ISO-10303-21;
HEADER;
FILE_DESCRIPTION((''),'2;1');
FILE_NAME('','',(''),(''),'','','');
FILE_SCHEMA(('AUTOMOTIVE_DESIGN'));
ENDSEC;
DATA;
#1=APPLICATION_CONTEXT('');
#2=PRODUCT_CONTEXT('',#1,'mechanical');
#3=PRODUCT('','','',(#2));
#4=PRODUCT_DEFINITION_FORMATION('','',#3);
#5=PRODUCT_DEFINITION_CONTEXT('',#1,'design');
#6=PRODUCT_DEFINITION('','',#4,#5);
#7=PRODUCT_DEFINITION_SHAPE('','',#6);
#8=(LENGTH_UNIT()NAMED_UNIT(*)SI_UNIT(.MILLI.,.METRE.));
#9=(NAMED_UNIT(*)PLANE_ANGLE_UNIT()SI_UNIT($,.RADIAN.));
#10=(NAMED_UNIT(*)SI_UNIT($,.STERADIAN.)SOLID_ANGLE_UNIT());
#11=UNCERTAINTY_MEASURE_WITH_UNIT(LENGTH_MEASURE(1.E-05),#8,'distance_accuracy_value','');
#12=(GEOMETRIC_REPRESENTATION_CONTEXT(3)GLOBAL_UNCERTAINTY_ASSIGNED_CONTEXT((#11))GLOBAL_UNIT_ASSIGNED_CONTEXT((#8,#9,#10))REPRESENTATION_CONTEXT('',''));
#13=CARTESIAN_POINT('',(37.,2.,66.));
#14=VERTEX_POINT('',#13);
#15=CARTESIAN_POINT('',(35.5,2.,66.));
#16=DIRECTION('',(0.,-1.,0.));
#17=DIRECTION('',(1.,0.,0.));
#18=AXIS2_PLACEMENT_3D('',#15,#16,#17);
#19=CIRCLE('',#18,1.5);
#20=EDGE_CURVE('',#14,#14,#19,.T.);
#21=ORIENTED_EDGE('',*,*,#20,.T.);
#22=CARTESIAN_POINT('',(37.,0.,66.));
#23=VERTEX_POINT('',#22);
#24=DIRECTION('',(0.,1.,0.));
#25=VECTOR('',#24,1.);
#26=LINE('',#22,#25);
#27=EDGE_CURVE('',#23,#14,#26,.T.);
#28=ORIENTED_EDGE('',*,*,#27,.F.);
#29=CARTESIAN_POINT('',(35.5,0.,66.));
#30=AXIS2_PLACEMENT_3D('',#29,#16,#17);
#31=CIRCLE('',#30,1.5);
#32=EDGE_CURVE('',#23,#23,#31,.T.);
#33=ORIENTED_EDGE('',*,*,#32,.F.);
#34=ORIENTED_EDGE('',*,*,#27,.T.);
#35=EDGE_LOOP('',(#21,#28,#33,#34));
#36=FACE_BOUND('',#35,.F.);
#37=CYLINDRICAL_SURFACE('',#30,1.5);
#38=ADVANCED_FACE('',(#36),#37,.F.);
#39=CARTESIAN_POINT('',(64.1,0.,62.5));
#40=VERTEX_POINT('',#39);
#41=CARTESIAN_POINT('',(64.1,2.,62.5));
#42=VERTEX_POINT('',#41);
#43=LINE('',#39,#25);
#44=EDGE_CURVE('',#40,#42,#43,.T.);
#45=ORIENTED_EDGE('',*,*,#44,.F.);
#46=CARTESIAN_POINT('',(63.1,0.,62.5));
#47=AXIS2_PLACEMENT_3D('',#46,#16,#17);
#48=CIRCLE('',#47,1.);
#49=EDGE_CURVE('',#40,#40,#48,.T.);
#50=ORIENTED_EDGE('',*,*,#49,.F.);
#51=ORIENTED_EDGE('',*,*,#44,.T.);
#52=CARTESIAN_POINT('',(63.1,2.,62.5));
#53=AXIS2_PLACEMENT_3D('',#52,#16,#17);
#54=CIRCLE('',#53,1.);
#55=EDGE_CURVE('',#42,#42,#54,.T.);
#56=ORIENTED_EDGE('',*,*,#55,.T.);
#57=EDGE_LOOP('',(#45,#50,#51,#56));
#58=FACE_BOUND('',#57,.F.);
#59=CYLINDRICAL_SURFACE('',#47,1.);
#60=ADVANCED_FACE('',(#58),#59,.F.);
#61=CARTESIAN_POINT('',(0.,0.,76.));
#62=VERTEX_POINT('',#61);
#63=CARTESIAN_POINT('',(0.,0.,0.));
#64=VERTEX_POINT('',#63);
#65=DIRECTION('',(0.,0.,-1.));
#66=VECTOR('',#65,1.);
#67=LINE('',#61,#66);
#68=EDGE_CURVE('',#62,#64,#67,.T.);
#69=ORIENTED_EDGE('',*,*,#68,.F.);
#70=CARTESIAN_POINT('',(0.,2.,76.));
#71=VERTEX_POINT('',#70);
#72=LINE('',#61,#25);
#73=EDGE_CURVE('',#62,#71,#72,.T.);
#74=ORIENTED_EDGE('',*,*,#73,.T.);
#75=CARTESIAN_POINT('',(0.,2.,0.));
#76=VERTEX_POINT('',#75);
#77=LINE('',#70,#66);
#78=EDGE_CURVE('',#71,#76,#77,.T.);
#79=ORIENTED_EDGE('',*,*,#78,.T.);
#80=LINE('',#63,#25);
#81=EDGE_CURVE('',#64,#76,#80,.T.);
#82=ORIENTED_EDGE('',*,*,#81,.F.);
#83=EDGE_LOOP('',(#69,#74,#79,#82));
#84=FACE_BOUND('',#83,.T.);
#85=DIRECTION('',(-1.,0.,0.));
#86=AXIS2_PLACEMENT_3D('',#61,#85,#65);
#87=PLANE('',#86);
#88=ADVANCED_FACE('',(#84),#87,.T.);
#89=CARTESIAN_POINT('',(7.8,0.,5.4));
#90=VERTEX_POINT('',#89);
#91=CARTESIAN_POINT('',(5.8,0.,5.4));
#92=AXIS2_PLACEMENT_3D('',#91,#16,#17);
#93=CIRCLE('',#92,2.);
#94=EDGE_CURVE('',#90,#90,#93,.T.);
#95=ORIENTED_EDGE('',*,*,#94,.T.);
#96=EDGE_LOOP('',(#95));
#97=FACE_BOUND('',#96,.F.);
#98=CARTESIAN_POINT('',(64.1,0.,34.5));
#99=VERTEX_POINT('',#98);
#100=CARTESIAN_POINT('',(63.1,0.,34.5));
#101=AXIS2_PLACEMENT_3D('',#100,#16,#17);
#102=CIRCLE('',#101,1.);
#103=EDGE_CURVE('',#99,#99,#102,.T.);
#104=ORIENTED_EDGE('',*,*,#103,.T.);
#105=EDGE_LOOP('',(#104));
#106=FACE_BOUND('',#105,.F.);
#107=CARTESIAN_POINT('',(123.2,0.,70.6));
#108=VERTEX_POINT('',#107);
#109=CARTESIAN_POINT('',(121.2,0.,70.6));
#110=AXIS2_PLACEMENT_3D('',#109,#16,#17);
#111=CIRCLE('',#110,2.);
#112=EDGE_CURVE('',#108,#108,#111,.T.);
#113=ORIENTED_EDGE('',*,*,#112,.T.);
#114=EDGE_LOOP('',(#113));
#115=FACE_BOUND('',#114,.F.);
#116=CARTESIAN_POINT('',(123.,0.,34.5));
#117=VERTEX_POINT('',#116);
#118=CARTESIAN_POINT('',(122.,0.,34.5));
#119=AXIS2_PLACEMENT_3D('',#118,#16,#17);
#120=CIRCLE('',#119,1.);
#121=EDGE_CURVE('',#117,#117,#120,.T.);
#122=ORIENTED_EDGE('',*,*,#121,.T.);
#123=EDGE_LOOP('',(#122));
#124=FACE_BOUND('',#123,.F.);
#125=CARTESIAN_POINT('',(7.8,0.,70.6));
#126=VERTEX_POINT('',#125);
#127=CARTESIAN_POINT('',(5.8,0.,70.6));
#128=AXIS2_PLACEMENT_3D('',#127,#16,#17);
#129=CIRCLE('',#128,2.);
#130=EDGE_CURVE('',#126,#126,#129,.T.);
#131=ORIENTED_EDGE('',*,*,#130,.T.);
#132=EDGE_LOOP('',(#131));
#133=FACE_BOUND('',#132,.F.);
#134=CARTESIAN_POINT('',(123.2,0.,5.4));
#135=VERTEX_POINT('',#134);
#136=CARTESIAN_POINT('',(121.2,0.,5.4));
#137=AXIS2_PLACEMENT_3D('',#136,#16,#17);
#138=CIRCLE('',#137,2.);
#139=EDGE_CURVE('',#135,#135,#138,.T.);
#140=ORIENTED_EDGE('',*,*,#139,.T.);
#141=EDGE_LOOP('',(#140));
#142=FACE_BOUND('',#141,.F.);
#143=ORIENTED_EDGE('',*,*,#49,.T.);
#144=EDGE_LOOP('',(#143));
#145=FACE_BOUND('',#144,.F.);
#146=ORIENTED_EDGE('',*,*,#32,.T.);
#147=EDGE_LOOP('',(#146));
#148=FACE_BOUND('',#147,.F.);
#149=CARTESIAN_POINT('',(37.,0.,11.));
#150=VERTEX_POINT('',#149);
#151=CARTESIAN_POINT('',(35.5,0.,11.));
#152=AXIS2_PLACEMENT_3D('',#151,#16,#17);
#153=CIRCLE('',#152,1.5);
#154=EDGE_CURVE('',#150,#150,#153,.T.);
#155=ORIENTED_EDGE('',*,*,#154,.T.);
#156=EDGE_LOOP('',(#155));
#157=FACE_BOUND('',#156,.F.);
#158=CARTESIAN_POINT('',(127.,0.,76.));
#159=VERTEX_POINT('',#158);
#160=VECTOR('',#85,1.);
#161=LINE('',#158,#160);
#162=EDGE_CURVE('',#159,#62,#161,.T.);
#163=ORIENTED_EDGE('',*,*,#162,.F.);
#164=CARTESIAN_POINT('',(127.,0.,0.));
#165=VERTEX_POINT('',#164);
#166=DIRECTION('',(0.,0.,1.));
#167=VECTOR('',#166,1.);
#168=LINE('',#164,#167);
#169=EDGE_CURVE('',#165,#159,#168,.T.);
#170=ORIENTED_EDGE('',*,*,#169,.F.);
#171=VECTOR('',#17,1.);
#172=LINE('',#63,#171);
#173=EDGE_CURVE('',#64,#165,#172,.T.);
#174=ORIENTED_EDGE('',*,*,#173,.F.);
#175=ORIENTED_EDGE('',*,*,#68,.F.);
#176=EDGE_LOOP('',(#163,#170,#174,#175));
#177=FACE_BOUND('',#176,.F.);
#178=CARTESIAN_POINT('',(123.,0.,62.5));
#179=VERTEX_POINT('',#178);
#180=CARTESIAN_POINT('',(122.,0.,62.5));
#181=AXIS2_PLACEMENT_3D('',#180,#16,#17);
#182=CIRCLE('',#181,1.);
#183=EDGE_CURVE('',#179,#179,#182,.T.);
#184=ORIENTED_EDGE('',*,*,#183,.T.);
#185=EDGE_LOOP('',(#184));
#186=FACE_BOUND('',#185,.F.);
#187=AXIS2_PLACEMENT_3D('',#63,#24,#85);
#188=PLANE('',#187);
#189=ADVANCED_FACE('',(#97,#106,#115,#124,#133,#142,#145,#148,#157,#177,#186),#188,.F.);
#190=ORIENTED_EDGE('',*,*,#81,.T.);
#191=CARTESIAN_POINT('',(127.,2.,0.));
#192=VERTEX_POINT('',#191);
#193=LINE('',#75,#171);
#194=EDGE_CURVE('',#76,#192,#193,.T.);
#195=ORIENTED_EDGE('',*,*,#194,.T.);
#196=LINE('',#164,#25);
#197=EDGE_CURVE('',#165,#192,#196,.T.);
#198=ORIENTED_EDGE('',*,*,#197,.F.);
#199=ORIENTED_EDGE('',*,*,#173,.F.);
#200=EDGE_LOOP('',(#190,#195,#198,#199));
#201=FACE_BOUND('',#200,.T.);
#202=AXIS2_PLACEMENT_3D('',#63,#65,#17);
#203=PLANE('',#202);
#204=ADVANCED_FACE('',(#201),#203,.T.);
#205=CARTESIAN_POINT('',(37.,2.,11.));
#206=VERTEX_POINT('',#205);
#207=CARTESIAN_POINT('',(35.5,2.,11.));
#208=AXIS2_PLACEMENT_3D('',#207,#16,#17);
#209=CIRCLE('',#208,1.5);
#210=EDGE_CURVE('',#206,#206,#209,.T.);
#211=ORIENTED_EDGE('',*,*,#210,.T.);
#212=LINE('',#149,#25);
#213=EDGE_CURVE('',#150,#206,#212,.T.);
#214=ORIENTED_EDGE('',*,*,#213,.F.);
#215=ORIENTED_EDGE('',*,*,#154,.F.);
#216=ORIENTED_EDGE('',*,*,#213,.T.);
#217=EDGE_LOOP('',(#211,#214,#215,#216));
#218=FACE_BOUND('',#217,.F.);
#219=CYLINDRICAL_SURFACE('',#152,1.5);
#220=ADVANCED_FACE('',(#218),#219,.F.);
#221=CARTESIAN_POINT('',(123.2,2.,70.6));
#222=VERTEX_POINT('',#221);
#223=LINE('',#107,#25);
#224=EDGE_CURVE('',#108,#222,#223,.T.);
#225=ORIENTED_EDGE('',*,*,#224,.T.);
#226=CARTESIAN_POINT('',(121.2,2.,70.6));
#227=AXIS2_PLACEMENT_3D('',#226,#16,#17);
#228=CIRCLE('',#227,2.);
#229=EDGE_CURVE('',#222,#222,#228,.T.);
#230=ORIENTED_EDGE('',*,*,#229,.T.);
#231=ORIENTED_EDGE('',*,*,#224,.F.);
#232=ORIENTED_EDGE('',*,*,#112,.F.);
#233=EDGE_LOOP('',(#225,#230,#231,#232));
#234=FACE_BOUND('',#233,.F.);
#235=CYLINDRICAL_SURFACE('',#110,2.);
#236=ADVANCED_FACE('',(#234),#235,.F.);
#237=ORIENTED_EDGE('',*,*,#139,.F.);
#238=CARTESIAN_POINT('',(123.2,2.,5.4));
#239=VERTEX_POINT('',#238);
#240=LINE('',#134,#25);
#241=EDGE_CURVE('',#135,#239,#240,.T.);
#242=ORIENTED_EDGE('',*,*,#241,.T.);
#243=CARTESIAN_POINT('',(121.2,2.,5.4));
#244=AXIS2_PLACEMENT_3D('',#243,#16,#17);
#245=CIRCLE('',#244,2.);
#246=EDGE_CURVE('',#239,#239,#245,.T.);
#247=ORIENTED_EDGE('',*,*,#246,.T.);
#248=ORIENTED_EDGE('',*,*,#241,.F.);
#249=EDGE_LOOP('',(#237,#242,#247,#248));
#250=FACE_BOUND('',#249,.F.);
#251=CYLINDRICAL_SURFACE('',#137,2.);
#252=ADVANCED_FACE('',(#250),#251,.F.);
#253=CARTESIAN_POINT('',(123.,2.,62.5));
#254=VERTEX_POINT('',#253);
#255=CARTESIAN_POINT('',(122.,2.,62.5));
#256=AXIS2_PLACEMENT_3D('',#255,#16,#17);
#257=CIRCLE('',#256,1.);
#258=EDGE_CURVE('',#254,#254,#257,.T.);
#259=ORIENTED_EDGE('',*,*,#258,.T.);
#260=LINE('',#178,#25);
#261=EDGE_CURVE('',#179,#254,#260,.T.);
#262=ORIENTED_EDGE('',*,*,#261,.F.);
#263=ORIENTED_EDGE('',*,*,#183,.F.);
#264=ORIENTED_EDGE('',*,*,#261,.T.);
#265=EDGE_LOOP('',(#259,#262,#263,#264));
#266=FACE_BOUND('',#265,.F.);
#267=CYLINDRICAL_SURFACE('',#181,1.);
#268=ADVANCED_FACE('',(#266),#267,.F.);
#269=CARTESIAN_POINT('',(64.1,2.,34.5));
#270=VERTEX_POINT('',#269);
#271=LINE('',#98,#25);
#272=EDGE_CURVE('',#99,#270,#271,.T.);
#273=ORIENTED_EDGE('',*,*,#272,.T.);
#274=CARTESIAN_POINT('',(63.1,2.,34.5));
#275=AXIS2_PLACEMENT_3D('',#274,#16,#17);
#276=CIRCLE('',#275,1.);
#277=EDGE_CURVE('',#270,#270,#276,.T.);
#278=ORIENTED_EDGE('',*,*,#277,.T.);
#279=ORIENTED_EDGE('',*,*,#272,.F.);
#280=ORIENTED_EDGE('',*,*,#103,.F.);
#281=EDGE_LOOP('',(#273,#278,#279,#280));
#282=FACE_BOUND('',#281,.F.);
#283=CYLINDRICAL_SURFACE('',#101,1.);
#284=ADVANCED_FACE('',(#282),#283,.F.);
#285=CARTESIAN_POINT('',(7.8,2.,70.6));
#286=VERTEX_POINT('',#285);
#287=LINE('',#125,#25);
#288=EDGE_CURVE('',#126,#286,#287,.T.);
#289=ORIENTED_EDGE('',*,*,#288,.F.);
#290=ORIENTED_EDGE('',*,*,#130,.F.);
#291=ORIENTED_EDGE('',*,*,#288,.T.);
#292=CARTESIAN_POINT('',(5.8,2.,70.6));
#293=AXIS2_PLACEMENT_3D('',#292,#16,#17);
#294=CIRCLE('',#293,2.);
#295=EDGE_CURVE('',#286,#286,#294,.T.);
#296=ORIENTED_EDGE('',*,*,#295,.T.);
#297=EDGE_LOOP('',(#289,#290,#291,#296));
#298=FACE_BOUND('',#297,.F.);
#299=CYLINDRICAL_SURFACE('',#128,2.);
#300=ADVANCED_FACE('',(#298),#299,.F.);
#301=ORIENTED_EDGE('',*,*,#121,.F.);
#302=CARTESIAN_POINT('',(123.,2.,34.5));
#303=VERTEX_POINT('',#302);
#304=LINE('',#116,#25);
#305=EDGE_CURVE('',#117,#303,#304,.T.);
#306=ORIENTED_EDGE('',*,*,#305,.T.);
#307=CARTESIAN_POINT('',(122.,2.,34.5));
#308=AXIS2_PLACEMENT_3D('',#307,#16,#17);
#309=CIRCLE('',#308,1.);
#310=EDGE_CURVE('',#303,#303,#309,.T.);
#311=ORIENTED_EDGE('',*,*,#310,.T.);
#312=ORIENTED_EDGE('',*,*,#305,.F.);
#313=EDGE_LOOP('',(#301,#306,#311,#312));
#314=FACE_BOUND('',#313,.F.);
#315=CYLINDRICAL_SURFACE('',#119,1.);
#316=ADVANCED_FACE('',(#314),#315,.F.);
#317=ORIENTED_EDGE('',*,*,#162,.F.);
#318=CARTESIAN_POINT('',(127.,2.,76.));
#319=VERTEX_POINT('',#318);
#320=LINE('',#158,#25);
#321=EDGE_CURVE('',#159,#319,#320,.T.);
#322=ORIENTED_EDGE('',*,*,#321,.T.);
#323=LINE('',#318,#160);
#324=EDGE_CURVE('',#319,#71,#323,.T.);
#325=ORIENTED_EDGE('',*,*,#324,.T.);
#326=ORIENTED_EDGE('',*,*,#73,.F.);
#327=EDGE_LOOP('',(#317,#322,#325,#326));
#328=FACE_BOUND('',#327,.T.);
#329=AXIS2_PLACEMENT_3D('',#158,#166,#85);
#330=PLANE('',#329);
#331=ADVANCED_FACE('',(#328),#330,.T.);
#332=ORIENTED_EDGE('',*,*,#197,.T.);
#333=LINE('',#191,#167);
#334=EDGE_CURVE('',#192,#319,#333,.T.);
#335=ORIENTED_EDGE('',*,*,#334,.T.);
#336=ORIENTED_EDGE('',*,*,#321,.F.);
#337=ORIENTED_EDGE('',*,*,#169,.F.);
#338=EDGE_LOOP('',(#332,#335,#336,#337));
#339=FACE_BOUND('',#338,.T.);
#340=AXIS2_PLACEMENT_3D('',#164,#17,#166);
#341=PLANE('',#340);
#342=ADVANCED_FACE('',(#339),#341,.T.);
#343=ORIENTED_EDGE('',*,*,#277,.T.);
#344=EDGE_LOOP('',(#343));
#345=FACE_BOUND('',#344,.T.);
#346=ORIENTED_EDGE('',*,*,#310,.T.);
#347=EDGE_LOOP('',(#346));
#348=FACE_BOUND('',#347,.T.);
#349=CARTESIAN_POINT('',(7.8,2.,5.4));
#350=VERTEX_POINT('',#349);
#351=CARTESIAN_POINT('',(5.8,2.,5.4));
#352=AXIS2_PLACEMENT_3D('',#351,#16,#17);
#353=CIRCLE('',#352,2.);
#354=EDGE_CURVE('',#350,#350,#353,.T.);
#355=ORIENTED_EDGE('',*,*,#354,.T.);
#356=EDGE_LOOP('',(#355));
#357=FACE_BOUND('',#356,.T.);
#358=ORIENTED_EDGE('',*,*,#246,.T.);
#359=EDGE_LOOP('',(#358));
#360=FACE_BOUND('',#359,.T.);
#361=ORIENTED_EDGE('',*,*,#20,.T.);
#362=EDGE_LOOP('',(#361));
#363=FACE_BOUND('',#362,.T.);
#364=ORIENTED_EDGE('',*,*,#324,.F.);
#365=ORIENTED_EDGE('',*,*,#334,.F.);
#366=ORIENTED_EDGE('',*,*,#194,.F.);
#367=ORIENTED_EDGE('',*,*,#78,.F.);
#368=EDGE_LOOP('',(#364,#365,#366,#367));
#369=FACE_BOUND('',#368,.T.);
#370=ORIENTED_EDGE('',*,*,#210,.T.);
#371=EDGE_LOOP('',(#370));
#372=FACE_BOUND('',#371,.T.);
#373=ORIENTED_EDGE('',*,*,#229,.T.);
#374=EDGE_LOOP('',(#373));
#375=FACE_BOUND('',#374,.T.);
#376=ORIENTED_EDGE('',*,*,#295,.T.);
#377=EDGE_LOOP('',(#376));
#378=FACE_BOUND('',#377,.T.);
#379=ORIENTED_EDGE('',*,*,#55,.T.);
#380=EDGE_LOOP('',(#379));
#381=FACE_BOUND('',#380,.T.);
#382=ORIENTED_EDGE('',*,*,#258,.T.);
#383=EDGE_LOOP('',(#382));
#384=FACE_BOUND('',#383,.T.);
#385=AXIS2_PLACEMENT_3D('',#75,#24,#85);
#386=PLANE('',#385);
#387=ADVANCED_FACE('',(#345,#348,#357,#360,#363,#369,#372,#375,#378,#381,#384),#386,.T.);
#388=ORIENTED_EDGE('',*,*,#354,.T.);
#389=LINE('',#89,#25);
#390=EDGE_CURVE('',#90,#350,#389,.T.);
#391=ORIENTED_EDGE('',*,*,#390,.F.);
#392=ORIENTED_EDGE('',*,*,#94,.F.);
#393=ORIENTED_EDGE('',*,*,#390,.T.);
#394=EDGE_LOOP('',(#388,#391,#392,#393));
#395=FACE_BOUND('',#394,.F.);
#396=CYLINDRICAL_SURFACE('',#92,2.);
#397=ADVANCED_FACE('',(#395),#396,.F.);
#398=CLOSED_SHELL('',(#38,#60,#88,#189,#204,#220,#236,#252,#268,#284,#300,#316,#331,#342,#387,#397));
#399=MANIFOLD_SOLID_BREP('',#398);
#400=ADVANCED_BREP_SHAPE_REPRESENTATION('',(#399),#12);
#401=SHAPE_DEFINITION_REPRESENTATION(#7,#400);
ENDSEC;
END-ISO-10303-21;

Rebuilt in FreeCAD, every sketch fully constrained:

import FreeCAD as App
import Part
import Sketcher

doc = App.newDocument("Part")
body = doc.addObject("PartDesign::Body", "Body")

# Sketch on XZ plane
sketch1 = body.newObject("Sketcher::SketchObject", "Sketch")
sketch1.AttachmentSupport = (doc.getObject("XZ_Plane"), [""])
sketch1.MapMode = "FlatFace"
sketch1.addGeometry(Part.LineSegment(App.Vector(127, 0, 0), App.Vector(0, 0, 0)), False)
sketch1.addGeometry(Part.LineSegment(App.Vector(0, 0, 0), App.Vector(0, 76, 0)), False)
sketch1.addGeometry(Part.LineSegment(App.Vector(0, 76, 0), App.Vector(127, 76, 0)), False)
sketch1.addGeometry(Part.LineSegment(App.Vector(127, 76, 0), App.Vector(127, 0, 0)), False)
sketch1.addConstraint(Sketcher.Constraint("Coincident", 0, 2, 1, 1))
sketch1.addConstraint(Sketcher.Constraint("Coincident", 1, 2, 2, 1))
sketch1.addConstraint(Sketcher.Constraint("Coincident", 2, 2, 3, 1))
sketch1.addConstraint(Sketcher.Constraint("Coincident", 3, 2, 0, 1))
sketch1.addConstraint(Sketcher.Constraint("Horizontal", 0))
sketch1.addConstraint(Sketcher.Constraint("Vertical", 1))
sketch1.addConstraint(Sketcher.Constraint("Horizontal", 2))
sketch1.addConstraint(Sketcher.Constraint("Vertical", 3))
sketch1.addConstraint(Sketcher.Constraint("Coincident", 0, 2, -1, 1))
sketch1.addConstraint(Sketcher.Constraint("DistanceX", 0, 2, 0, 1, 127.0))
sketch1.addConstraint(Sketcher.Constraint("DistanceY", 1, 1, 1, 2, 76.0))
pad1 = body.newObject("PartDesign::Pad", "Pad")
pad1.Profile = sketch1
pad1.Length = 2
pad1.Reversed = True

# Sketch on XZ plane
sketch2 = body.newObject("Sketcher::SketchObject", "Sketch001")
sketch2.AttachmentSupport = (doc.getObject("XZ_Plane"), [""])
sketch2.MapMode = "FlatFace"
sketch2.addGeometry(Part.Circle(App.Vector(121.2, 70.6, 0), App.Vector(0, 0, 1), 2), False)
sketch2.addGeometry(Part.Circle(App.Vector(121.2, 5.4, 0), App.Vector(0, 0, 1), 2), False)
sketch2.addGeometry(Part.Circle(App.Vector(5.8, 70.6, 0), App.Vector(0, 0, 1), 2), False)
sketch2.addGeometry(Part.Circle(App.Vector(5.8, 5.4, 0), App.Vector(0, 0, 1), 2), False)
sketch2.addConstraint(Sketcher.Constraint("Equal", 0, 1))
sketch2.addConstraint(Sketcher.Constraint("Equal", 1, 2))
sketch2.addConstraint(Sketcher.Constraint("Equal", 2, 3))
sketch2.addConstraint(Sketcher.Constraint("Horizontal", 0, 3, 2, 3))
sketch2.addConstraint(Sketcher.Constraint("Horizontal", 1, 3, 3, 3))
sketch2.addConstraint(Sketcher.Constraint("Vertical", 0, 3, 1, 3))
sketch2.addConstraint(Sketcher.Constraint("Vertical", 2, 3, 3, 3))
sketch2.addConstraint(Sketcher.Constraint("Diameter", 0, 4.0))
sketch2.addConstraint(Sketcher.Constraint("DistanceX", -1, 1, 0, 3, 121.2))
sketch2.addConstraint(Sketcher.Constraint("DistanceY", -1, 1, 0, 3, 70.6))
sketch2.addConstraint(Sketcher.Constraint("DistanceY", -1, 1, 1, 3, 5.4))
sketch2.addConstraint(Sketcher.Constraint("DistanceX", -1, 1, 2, 3, 5.8))
pocket1 = body.newObject("PartDesign::Pocket", "Pocket")
pocket1.Profile = sketch2
pocket1.Type = "ThroughAll"

# Sketch on XZ plane
sketch3 = body.newObject("Sketcher::SketchObject", "Sketch002")
sketch3.AttachmentSupport = (doc.getObject("XZ_Plane"), [""])
sketch3.MapMode = "FlatFace"
sketch3.addGeometry(Part.Circle(App.Vector(35.5, 11, 0), App.Vector(0, 0, 1), 1.5), False)
sketch3.addGeometry(Part.Circle(App.Vector(35.5, 66, 0), App.Vector(0, 0, 1), 1.5), False)
sketch3.addGeometry(Part.Circle(App.Vector(122, 34.5, 0), App.Vector(0, 0, 1), 1), False)
sketch3.addGeometry(Part.Circle(App.Vector(122, 62.5, 0), App.Vector(0, 0, 1), 1), False)
sketch3.addGeometry(Part.Circle(App.Vector(63.1, 34.5, 0), App.Vector(0, 0, 1), 1), False)
sketch3.addGeometry(Part.Circle(App.Vector(63.1, 62.5, 0), App.Vector(0, 0, 1), 1), False)
sketch3.addConstraint(Sketcher.Constraint("Equal", 0, 1))
sketch3.addConstraint(Sketcher.Constraint("Equal", 2, 3))
sketch3.addConstraint(Sketcher.Constraint("Equal", 3, 4))
sketch3.addConstraint(Sketcher.Constraint("Equal", 4, 5))
sketch3.addConstraint(Sketcher.Constraint("Horizontal", 2, 3, 4, 3))
sketch3.addConstraint(Sketcher.Constraint("Horizontal", 3, 3, 5, 3))
sketch3.addConstraint(Sketcher.Constraint("Vertical", 0, 3, 1, 3))
sketch3.addConstraint(Sketcher.Constraint("Vertical", 2, 3, 3, 3))
sketch3.addConstraint(Sketcher.Constraint("Vertical", 4, 3, 5, 3))
sketch3.addConstraint(Sketcher.Constraint("Diameter", 0, 3.0))
sketch3.addConstraint(Sketcher.Constraint("Diameter", 2, 2.0))
sketch3.addConstraint(Sketcher.Constraint("DistanceY", -1, 1, 0, 3, 11.0))
sketch3.addConstraint(Sketcher.Constraint("DistanceY", 0, 3, 1, 3, 55.0))
sketch3.addConstraint(Sketcher.Constraint("DistanceY", 2, 3, 3, 3, 28.0))
sketch3.addConstraint(Sketcher.Constraint("DistanceX", 4, 3, 2, 3, 58.9))
sketch3.addConstraint(Sketcher.Constraint("DistanceX", -1, 1, 2, 3, 122.0))
sketch3.addConstraint(Sketcher.Constraint("DistanceX", -1, 1, 0, 3, 35.5))
sketch3.addConstraint(Sketcher.Constraint("DistanceY", -1, 1, 2, 3, 34.5))
pocket2 = body.newObject("PartDesign::Pocket", "Pocket001")
pocket2.Profile = sketch3
pocket2.Type = "ThroughAll"

doc.recompute()
